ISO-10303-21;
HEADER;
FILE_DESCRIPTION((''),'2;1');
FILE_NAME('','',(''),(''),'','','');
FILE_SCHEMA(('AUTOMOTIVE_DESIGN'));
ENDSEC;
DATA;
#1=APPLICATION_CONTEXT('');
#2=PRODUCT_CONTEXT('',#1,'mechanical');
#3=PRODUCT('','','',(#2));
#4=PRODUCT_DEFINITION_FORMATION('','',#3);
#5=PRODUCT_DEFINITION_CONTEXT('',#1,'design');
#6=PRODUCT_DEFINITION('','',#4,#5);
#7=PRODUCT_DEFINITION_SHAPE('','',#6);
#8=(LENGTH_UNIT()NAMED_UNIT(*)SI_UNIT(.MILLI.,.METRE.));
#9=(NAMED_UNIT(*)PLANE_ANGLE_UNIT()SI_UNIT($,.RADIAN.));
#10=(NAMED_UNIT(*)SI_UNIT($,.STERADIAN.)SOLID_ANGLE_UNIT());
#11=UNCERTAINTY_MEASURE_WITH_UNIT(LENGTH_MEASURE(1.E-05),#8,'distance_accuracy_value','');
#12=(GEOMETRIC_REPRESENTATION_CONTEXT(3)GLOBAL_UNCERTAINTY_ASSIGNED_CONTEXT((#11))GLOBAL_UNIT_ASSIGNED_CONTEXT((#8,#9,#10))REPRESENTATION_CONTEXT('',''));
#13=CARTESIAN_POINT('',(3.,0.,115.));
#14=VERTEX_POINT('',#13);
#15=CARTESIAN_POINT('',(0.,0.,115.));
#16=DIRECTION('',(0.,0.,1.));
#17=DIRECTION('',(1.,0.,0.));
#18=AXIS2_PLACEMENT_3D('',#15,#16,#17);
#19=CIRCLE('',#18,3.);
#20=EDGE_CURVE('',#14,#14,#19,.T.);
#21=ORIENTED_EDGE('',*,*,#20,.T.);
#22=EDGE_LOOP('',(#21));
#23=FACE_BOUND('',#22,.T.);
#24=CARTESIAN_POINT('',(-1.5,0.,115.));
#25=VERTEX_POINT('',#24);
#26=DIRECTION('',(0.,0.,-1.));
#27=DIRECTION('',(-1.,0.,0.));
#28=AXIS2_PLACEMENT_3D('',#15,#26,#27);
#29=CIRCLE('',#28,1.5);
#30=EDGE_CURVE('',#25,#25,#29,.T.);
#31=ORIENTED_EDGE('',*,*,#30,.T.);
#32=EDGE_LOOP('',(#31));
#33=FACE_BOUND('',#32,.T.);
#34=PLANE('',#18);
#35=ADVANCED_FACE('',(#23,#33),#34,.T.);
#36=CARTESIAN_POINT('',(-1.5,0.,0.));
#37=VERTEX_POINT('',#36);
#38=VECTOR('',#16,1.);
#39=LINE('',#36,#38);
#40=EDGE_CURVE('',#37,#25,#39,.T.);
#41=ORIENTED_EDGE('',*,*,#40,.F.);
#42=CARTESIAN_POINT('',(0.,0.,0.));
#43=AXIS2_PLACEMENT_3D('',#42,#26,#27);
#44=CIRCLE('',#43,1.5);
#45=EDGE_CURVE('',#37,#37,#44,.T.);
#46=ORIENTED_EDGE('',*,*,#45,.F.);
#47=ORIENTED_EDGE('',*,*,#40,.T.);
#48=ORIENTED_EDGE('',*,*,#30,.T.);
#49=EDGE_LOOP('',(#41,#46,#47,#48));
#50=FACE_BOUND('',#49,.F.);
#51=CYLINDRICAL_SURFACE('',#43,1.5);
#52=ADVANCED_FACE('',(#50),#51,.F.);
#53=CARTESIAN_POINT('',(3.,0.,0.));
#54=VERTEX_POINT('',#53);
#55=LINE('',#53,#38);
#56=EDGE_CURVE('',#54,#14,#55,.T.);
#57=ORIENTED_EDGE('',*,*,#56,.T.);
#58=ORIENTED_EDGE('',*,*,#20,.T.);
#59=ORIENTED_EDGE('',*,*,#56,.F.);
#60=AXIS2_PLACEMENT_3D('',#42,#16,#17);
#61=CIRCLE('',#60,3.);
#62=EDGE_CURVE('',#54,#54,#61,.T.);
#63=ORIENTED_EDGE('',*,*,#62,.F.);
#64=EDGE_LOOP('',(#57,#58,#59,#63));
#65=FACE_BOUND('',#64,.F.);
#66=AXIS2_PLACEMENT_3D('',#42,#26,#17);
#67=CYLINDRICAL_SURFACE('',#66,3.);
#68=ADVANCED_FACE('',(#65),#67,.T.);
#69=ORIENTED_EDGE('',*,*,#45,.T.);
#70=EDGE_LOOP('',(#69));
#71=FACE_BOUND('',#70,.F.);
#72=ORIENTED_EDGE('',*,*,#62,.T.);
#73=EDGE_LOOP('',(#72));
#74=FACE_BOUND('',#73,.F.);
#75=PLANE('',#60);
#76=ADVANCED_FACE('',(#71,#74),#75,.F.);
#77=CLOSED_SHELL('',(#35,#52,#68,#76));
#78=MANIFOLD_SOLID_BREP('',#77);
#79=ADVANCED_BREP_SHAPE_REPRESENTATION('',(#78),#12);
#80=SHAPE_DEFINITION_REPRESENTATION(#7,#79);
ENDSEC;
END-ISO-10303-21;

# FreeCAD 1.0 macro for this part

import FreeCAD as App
import Part
import Sketcher

V = App.Vector
Q = App.Units.Quantity

doc = App.newDocument("Part")
body = doc.addObject("PartDesign::Body", "Body")

# Sketch on XY plane
sketch1 = body.newObject("Sketcher::SketchObject", "Sketch")
sketch1.AttachmentSupport = (doc.getObject("XY_Plane"), [""])
sketch1.MapMode = "FlatFace"
sketch1.addGeometry(Part.Circle(V(0, 0, 0), V(0, 0, 1), 3), False)
sketch1.addConstraint([
    Sketcher.Constraint("Coincident", 0, 3, -1, 1),
    Sketcher.Constraint("Diameter", 0, Q("6 mm")),
])
pad1 = body.newObject("PartDesign::Pad", "Pad")
pad1.Profile = sketch1
pad1.Length = 115

# Sketch on XY plane
sketch2 = body.newObject("Sketcher::SketchObject", "Sketch001")
sketch2.AttachmentSupport = (doc.getObject("XY_Plane"), [""])
sketch2.MapMode = "FlatFace"
sketch2.addGeometry(Part.Circle(V(0, 0, 0), V(0, 0, 1), 1.5), False)
sketch2.addConstraint([
    Sketcher.Constraint("Coincident", 0, 3, -1, 1),
    Sketcher.Constraint("Diameter", 0, Q("3 mm")),
])
pocket1 = body.newObject("PartDesign::Pocket", "Pocket")
pocket1.Profile = sketch2
pocket1.Length = 137.25
pocket1.Reversed = True

doc.recompute()
